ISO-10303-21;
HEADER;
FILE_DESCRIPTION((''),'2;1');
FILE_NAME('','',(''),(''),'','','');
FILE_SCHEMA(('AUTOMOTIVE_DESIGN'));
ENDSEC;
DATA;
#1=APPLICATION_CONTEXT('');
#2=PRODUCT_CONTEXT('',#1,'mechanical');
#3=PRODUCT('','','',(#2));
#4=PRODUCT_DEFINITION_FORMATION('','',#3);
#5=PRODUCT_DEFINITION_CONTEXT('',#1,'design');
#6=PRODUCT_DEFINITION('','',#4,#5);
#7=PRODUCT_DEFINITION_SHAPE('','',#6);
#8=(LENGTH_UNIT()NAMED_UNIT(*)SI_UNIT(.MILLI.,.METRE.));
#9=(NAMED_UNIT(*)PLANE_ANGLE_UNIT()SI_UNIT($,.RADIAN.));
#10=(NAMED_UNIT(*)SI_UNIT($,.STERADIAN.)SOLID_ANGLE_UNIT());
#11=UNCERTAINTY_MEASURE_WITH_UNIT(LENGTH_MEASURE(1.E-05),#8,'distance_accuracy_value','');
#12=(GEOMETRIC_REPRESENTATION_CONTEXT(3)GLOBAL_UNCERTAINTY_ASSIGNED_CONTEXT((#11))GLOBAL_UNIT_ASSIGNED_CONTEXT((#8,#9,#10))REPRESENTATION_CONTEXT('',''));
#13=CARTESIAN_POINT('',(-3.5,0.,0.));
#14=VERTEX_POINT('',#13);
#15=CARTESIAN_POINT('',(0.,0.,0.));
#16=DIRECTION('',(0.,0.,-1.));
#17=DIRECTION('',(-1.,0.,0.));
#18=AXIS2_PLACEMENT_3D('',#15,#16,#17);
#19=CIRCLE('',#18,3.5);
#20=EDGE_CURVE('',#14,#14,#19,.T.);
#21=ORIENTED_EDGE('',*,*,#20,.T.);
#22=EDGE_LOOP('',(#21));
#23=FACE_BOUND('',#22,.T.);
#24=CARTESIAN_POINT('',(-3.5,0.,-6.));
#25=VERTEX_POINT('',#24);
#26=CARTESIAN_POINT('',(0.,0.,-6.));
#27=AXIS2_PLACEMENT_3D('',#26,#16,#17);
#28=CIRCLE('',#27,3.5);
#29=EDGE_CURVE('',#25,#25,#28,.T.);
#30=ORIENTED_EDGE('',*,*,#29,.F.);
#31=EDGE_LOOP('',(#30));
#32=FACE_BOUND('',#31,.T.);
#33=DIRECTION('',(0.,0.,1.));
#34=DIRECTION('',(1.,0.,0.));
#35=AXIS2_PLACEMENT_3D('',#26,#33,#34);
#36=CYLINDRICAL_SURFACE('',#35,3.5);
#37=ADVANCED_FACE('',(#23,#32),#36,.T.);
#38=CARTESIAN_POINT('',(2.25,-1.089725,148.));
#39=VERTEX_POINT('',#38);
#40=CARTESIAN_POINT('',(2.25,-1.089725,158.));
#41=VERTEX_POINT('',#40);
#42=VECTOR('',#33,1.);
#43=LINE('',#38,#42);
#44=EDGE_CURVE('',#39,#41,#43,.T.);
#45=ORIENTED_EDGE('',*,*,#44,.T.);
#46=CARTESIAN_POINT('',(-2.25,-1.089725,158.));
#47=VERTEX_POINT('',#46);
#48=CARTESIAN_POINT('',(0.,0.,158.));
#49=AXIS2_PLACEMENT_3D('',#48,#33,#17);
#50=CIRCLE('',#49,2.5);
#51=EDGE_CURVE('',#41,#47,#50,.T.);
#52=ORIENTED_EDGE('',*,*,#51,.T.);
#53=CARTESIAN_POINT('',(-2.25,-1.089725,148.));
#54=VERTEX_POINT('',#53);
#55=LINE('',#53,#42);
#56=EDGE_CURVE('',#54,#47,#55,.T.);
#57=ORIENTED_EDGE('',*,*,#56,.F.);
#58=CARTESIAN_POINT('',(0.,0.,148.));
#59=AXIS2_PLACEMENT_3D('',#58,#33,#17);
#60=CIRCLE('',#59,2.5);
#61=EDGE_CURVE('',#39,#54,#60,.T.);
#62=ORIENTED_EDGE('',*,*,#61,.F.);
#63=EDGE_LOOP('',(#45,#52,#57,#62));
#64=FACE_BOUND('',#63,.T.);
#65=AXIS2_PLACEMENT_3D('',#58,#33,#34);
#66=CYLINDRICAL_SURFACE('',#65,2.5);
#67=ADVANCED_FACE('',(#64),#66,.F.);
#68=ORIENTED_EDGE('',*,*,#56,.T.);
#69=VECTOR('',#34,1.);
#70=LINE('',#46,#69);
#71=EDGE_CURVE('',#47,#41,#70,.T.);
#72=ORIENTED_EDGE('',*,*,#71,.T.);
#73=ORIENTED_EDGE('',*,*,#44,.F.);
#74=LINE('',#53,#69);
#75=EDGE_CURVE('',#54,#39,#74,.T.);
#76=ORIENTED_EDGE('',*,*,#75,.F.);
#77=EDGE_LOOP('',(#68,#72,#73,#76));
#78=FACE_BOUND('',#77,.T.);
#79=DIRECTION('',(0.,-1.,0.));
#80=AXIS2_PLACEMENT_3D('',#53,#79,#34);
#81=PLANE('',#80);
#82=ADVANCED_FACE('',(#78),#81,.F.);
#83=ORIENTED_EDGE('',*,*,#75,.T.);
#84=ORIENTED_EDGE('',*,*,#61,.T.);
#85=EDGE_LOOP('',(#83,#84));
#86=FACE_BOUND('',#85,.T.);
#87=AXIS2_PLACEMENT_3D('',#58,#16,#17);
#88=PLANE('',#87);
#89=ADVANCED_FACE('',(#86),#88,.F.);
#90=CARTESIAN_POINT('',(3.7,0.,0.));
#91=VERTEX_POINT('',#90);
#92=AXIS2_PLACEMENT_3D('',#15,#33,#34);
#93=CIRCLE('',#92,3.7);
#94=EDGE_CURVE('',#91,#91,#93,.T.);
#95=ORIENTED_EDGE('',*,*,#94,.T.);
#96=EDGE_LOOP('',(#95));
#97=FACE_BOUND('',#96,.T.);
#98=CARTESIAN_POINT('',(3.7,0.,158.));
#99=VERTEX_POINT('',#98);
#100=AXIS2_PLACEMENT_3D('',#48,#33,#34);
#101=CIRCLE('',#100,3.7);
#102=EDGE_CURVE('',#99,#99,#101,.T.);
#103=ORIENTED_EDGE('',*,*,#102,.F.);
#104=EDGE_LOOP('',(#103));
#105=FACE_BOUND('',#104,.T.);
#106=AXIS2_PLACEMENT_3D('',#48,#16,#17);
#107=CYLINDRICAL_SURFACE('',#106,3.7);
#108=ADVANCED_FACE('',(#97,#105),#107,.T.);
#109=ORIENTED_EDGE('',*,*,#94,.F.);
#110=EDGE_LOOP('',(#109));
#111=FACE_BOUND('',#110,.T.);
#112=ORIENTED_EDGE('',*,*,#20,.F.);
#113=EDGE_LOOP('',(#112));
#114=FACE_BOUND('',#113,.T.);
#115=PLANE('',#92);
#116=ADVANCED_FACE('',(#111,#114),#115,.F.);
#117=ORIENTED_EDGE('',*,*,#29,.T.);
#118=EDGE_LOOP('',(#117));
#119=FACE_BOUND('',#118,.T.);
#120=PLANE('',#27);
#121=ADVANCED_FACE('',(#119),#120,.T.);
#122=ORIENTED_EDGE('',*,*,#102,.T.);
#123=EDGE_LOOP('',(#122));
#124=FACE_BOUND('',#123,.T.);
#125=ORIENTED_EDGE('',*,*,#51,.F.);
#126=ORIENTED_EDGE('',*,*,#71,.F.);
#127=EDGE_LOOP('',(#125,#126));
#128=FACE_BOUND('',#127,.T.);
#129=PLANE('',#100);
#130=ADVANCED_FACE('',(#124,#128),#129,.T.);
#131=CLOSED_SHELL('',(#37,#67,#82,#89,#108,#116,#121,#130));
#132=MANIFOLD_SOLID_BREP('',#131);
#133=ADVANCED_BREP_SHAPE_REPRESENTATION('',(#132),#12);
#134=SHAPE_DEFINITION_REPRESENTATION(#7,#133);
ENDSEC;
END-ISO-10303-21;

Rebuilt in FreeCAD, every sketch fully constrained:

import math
import FreeCAD as App
import Part
import Sketcher

V = App.Vector

doc = App.newDocument("Part")
body = doc.addObject("PartDesign::Body", "Body")

# Sketch on XY plane
sketch1 = doc.addObject("Sketcher::SketchObject", "Sketch")
body.addObject(sketch1)
sketch1.AttachmentSupport = (doc.XY_Plane, [""])
sketch1.MapMode = "FlatFace"
sketch1.addGeometry(Part.Circle(V(0, 0, 0), V(0, 0, 1), 3.7), False)
sketch1.addConstraint(Sketcher.Constraint("Coincident", 0, 3, -1, 1))
sketch1.addConstraint(Sketcher.Constraint("Diameter", 0, 7.4))
pad1 = doc.addObject("PartDesign::Pad", "Pad")
body.addObject(pad1)
pad1.Profile = sketch1
pad1.Length = 158

# Sketch on XY plane
sketch2 = doc.addObject("Sketcher::SketchObject", "Sketch001")
body.addObject(sketch2)
sketch2.AttachmentSupport = (doc.XY_Plane, [""])
sketch2.MapMode = "FlatFace"
sketch2.addGeometry(Part.Circle(V(0, 0, 0), V(0, 0, 1), 3.5), False)
sketch2.addConstraint(Sketcher.Constraint("Coincident", 0, 3, -1, 1))
sketch2.addConstraint(Sketcher.Constraint("Diameter", 0, 7.0))
pad2 = doc.addObject("PartDesign::Pad", "Pad001")
body.addObject(pad2)
pad2.Profile = sketch2
pad2.Length = 6
pad2.Reversed = True

# Sketch on XY plane
sketch3 = doc.addObject("Sketcher::SketchObject", "Sketch002")
body.addObject(sketch3)
sketch3.AttachmentSupport = (doc.XY_Plane, [""])
sketch3.MapMode = "FlatFace"
sketch3.AttachmentOffset = App.Placement(V(0, 0, 158), App.Rotation())
sketch3.addGeometry(Part.LineSegment(V(-2.2, -1.1, 0), V(2.2, -1.1, 0)), False)
sketch3.addGeometry(Part.ArcOfCircle(Part.Circle(V(0, 0, 0), V(0, 0, 1), 2.5), math.radians(-26), math.radians(206)), False)
sketch3.addConstraint(Sketcher.Constraint("Coincident", 0, 1, 1, 2))
sketch3.addConstraint(Sketcher.Constraint("Coincident", 1, 1, 0, 2))
sketch3.addConstraint(Sketcher.Constraint("Horizontal", 0))
sketch3.addConstraint(Sketcher.Constraint("Coincident", 1, 3, -1, 1))
sketch3.addConstraint(Sketcher.Constraint("Radius", 1, 2.5))
sketch3.addConstraint(Sketcher.Constraint("DistanceX", 0, 1, 0, 2, 4.5))
pocket1 = doc.addObject("PartDesign::Pocket", "Pocket")
body.addObject(pocket1)
pocket1.Profile = sketch3
pocket1.Length = 10

doc.recompute()
